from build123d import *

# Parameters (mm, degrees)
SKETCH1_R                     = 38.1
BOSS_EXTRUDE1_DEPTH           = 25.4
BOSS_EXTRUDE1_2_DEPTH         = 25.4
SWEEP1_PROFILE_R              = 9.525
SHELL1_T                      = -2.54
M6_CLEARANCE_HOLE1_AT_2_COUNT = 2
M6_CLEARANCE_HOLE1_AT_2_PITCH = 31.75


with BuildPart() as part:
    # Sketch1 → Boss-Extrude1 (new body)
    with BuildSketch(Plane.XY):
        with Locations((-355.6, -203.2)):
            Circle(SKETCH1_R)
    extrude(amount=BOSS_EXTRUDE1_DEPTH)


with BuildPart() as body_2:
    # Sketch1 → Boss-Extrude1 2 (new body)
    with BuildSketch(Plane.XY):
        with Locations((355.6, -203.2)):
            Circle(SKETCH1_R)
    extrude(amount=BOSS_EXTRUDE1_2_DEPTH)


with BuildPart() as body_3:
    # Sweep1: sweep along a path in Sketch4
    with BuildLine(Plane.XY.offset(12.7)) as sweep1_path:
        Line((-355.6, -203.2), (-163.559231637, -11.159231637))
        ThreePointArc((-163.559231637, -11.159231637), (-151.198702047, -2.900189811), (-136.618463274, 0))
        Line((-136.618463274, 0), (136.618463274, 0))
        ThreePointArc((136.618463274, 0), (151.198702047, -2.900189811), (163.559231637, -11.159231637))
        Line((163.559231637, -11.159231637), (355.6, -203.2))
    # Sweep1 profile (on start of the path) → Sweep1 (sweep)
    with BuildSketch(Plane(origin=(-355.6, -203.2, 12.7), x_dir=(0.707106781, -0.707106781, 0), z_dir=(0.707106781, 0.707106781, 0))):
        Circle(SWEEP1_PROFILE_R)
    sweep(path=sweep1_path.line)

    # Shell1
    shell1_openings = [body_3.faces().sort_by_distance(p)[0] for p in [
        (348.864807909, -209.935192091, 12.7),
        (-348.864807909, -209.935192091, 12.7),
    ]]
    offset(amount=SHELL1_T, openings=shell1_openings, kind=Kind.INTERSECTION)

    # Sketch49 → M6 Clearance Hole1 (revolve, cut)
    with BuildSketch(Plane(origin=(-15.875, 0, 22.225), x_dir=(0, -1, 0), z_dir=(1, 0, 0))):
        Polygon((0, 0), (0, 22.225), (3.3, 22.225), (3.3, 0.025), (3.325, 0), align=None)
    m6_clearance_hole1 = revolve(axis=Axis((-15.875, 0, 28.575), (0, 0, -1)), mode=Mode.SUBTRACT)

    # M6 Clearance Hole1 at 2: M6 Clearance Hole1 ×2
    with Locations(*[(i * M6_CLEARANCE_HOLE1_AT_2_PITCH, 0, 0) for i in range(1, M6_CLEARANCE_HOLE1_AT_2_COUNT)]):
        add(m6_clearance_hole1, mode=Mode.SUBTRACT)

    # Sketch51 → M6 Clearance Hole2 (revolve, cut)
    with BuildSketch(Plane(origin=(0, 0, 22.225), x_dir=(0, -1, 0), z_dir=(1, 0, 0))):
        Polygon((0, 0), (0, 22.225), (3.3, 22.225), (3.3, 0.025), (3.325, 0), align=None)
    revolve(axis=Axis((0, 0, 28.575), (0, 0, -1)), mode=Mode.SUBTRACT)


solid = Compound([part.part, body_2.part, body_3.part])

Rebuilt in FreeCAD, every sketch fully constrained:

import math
import FreeCAD as App
import Part
import Sketcher

V = App.Vector
Q = App.Units.Quantity


def faces_at(feature, points):
    """Names of the faces that lie closest to the given points."""
    faces = feature.Shape.Faces
    near = lambda p: min(range(len(faces)), key=lambda i: faces[i].distToShape(Part.Vertex(*p))[0])
    return sorted({f"Face{near(p) + 1}" for p in points})


def add_polygon(sketch, points):
    """Adds a closed chain of lines whose ends are joined by coincident constraints."""
    first, n = sketch.GeometryCount, len(points)
    for a, b in zip(points, points[1:] + points[:1]):
        sketch.addGeometry(Part.LineSegment(App.Vector(*a, 0), App.Vector(*b, 0)), False)
    for i in range(n):
        sketch.addConstraint(Sketcher.Constraint("Coincident", first + i, 2, first + (i + 1) % n, 1))

doc = App.newDocument("Part")
body = doc.addObject("PartDesign::Body", "Body")

sketch1 = doc.addObject("Sketcher::SketchObject", "Sketch")
body.addObject(sketch1)
sketch1.AttachmentSupport = (doc.XY_Plane, [""])
sketch1.MapMode = "FlatFace"
sketch1.addGeometry(Part.Circle(V(-356, -203, 0), V(0, 0, 1), 38), False)
sketch1.addConstraint([
    Sketcher.Constraint("Diameter", 0, Q("3 in")),
    Sketcher.Constraint("DistanceX", 0, 3, -1, 1, Q("14 in")),
    Sketcher.Constraint("DistanceY", 0, 3, -1, 1, Q("8 in")),
])
pad1 = doc.addObject("PartDesign::Pad", "Pad")
body.addObject(pad1)
pad1.Profile = sketch1
pad1.Length = Q("1 in")
body2 = doc.addObject("PartDesign::Body", "Body001")

sketch2 = doc.addObject("Sketcher::SketchObject", "Sketch001")
body2.addObject(sketch2)
sketch2.AttachmentSupport = (doc.getObject("XY_Plane001"), [""])
sketch2.MapMode = "FlatFace"
sketch2.addGeometry(Part.Circle(V(356, -203, 0), V(0, 0, 1), 38), False)
sketch2.addConstraint([
    Sketcher.Constraint("Diameter", 0, Q("3 in")),
    Sketcher.Constraint("DistanceX", -1, 1, 0, 3, Q("14 in")),
    Sketcher.Constraint("DistanceY", 0, 3, -1, 1, Q("8 in")),
])
pad2 = doc.addObject("PartDesign::Pad", "Pad001")
body2.addObject(pad2)
pad2.Profile = sketch2
pad2.Length = Q("1 in")
body3 = doc.addObject("PartDesign::Body", "Body002")

sketch3 = doc.addObject("Sketcher::SketchObject", "Sketch002")
body3.addObject(sketch3)
sketch3.Placement = App.Placement(V(-355.6, -203.2, 12.7), App.Rotation(V(0.707106781, -0.707106781, 0), V(0, 0, -0.999999999), V(0.707106781, 0.707106781, 0), "ZXY"))
sketch3.addGeometry(Part.Circle(V(0, 0, 0), V(0, 0, 1), 10), False)
sketch3.addConstraint([
    Sketcher.Constraint("Coincident", 0, 3, -1, 1),
    Sketcher.Constraint("Diameter", 0, Q("0.75 in")),
])

sketch4 = doc.addObject("Sketcher::SketchObject", "Sketch003")
body3.addObject(sketch4)
sketch4.AttachmentSupport = (doc.getObject("XY_Plane002"), [""])
sketch4.MapMode = "FlatFace"
sketch4.AttachmentOffset = App.Placement(V(0, 0, 0.5 * 25.4), App.Rotation())
sketch4.addGeometry([
    Part.LineSegment(V(-356, -203, 0), V(-164, -11, 0)),
    Part.ArcOfCircle(Part.Circle(V(-137, -38, 0), V(0, 0, 1), 38), math.radians(90), math.radians(135)),
    Part.LineSegment(V(-137, 0, 0), V(137, 0, 0)),
    Part.ArcOfCircle(Part.Circle(V(137, -38, 0), V(0, 0, 1), 38), math.radians(45), math.radians(90)),
    Part.LineSegment(V(164, -11, 0), V(356, -203, 0)),
], False)
sketch4.addConstraint([
    Sketcher.Constraint("Tangent", 0, 2, 1, 2),
    Sketcher.Constraint("Tangent", 1, 1, 2, 1),
    Sketcher.Constraint("Tangent", 2, 2, 3, 2),
    Sketcher.Constraint("Tangent", 3, 1, 4, 1),
    Sketcher.Constraint("Horizontal", 2),
    Sketcher.Constraint("Equal", 1, 3),
    Sketcher.Constraint("Symmetric", 1, 1, 2, 2, -1, 1),
    Sketcher.Constraint("Symmetric", 0, 1, 4, 2, -2),
    Sketcher.Constraint("Perpendicular", 0, 4),
    Sketcher.Constraint("Radius", 1, Q("1.5 in")),
    Sketcher.Constraint("DistanceX", 0, 1, -1, 1, Q("14 in")),
    Sketcher.Constraint("DistanceY", 0, 1, -1, 1, Q("8 in")),
])
doc.recompute()

additivepipe = doc.addObject("PartDesign::AdditivePipe", "AdditivePipe")
body3.addObject(additivepipe)
additivepipe.Profile = sketch3
additivepipe.Spine = (sketch4, ["Edge1", "Edge2", "Edge3", "Edge4", "Edge5"])
doc.recompute()

thickness = doc.addObject("PartDesign::Thickness", "Thickness")
body3.addObject(thickness)
thickness.Base = (additivepipe, faces_at(additivepipe, [(355.6, -203.2, 12.7), (-355.6, -203.2, 12.7)]))
thickness.Value = Q("0.1 in")
thickness.Reversed = True
thickness.Join = "Intersection"

sketch5 = doc.addObject("Sketcher::SketchObject", "Sketch004")
body3.addObject(sketch5)
sketch5.AttachmentSupport = (doc.getObject("YZ_Plane002"), [""])
sketch5.MapMode = "FlatFace"
sketch5.AttachmentOffset = App.Placement(V(0, 0, -0.625 * 25.4), App.Rotation())
add_polygon(sketch5, [(0, 0), (0, 22.225), (-3.325, 22.225), (-3.3, 22.2), (-3.3, 0)])
sketch5.addConstraint([
    Sketcher.Constraint("Vertical", 0),
    Sketcher.Constraint("Horizontal", 1),
    Sketcher.Constraint("Vertical", 3),
    Sketcher.Constraint("Horizontal", 4),
    Sketcher.Constraint("Coincident", 4, 2, -1, 1),
    Sketcher.Constraint("Angle", 2, Q("-45 deg")),
    Sketcher.Constraint("DistanceY", 0, 1, 0, 2, Q("0.875 in")),
    Sketcher.Constraint("DistanceX", 1, 2, 1, 1, 3.325),
    Sketcher.Constraint("DistanceX", 4, 1, 4, 2, 3.3),
])
groove = doc.addObject("PartDesign::Groove", "Groove")
body3.addObject(groove)
groove.Profile = sketch5
groove.ReferenceAxis = (sketch5, ["V_Axis"])
groove.Angle = 360
doc.recompute()

linearpattern = doc.addObject("PartDesign::LinearPattern", "LinearPattern")
body3.addObject(linearpattern)
linearpattern.Originals = [groove]
linearpattern.Direction = (doc.getObject("X_Axis002"), [""])
linearpattern.Mode = "offset"
linearpattern.Offset = Q("1.25 in")
linearpattern.Occurrences = 2
body3.Tip = linearpattern

sketch6 = doc.addObject("Sketcher::SketchObject", "Sketch005")
body3.addObject(sketch6)
sketch6.AttachmentSupport = (doc.getObject("YZ_Plane002"), [""])
sketch6.MapMode = "FlatFace"
add_polygon(sketch6, [(0, 0), (0, 22.225), (-3.325, 22.225), (-3.3, 22.2), (-3.3, 0)])
sketch6.addConstraint([
    Sketcher.Constraint("Vertical", 0),
    Sketcher.Constraint("Horizontal", 1),
    Sketcher.Constraint("Vertical", 3),
    Sketcher.Constraint("Horizontal", 4),
    Sketcher.Constraint("Coincident", 4, 2, -1, 1),
    Sketcher.Constraint("Angle", 2, Q("-45 deg")),
    Sketcher.Constraint("DistanceY", 0, 1, 0, 2, Q("0.875 in")),
    Sketcher.Constraint("DistanceX", 1, 2, 1, 1, 3.325),
    Sketcher.Constraint("DistanceX", 4, 1, 4, 2, 3.3),
])
groove2 = doc.addObject("PartDesign::Groove", "Groove001")
body3.addObject(groove2)
groove2.Profile = sketch6
groove2.ReferenceAxis = (sketch6, ["V_Axis"])
groove2.Angle = 360

doc.recompute()
